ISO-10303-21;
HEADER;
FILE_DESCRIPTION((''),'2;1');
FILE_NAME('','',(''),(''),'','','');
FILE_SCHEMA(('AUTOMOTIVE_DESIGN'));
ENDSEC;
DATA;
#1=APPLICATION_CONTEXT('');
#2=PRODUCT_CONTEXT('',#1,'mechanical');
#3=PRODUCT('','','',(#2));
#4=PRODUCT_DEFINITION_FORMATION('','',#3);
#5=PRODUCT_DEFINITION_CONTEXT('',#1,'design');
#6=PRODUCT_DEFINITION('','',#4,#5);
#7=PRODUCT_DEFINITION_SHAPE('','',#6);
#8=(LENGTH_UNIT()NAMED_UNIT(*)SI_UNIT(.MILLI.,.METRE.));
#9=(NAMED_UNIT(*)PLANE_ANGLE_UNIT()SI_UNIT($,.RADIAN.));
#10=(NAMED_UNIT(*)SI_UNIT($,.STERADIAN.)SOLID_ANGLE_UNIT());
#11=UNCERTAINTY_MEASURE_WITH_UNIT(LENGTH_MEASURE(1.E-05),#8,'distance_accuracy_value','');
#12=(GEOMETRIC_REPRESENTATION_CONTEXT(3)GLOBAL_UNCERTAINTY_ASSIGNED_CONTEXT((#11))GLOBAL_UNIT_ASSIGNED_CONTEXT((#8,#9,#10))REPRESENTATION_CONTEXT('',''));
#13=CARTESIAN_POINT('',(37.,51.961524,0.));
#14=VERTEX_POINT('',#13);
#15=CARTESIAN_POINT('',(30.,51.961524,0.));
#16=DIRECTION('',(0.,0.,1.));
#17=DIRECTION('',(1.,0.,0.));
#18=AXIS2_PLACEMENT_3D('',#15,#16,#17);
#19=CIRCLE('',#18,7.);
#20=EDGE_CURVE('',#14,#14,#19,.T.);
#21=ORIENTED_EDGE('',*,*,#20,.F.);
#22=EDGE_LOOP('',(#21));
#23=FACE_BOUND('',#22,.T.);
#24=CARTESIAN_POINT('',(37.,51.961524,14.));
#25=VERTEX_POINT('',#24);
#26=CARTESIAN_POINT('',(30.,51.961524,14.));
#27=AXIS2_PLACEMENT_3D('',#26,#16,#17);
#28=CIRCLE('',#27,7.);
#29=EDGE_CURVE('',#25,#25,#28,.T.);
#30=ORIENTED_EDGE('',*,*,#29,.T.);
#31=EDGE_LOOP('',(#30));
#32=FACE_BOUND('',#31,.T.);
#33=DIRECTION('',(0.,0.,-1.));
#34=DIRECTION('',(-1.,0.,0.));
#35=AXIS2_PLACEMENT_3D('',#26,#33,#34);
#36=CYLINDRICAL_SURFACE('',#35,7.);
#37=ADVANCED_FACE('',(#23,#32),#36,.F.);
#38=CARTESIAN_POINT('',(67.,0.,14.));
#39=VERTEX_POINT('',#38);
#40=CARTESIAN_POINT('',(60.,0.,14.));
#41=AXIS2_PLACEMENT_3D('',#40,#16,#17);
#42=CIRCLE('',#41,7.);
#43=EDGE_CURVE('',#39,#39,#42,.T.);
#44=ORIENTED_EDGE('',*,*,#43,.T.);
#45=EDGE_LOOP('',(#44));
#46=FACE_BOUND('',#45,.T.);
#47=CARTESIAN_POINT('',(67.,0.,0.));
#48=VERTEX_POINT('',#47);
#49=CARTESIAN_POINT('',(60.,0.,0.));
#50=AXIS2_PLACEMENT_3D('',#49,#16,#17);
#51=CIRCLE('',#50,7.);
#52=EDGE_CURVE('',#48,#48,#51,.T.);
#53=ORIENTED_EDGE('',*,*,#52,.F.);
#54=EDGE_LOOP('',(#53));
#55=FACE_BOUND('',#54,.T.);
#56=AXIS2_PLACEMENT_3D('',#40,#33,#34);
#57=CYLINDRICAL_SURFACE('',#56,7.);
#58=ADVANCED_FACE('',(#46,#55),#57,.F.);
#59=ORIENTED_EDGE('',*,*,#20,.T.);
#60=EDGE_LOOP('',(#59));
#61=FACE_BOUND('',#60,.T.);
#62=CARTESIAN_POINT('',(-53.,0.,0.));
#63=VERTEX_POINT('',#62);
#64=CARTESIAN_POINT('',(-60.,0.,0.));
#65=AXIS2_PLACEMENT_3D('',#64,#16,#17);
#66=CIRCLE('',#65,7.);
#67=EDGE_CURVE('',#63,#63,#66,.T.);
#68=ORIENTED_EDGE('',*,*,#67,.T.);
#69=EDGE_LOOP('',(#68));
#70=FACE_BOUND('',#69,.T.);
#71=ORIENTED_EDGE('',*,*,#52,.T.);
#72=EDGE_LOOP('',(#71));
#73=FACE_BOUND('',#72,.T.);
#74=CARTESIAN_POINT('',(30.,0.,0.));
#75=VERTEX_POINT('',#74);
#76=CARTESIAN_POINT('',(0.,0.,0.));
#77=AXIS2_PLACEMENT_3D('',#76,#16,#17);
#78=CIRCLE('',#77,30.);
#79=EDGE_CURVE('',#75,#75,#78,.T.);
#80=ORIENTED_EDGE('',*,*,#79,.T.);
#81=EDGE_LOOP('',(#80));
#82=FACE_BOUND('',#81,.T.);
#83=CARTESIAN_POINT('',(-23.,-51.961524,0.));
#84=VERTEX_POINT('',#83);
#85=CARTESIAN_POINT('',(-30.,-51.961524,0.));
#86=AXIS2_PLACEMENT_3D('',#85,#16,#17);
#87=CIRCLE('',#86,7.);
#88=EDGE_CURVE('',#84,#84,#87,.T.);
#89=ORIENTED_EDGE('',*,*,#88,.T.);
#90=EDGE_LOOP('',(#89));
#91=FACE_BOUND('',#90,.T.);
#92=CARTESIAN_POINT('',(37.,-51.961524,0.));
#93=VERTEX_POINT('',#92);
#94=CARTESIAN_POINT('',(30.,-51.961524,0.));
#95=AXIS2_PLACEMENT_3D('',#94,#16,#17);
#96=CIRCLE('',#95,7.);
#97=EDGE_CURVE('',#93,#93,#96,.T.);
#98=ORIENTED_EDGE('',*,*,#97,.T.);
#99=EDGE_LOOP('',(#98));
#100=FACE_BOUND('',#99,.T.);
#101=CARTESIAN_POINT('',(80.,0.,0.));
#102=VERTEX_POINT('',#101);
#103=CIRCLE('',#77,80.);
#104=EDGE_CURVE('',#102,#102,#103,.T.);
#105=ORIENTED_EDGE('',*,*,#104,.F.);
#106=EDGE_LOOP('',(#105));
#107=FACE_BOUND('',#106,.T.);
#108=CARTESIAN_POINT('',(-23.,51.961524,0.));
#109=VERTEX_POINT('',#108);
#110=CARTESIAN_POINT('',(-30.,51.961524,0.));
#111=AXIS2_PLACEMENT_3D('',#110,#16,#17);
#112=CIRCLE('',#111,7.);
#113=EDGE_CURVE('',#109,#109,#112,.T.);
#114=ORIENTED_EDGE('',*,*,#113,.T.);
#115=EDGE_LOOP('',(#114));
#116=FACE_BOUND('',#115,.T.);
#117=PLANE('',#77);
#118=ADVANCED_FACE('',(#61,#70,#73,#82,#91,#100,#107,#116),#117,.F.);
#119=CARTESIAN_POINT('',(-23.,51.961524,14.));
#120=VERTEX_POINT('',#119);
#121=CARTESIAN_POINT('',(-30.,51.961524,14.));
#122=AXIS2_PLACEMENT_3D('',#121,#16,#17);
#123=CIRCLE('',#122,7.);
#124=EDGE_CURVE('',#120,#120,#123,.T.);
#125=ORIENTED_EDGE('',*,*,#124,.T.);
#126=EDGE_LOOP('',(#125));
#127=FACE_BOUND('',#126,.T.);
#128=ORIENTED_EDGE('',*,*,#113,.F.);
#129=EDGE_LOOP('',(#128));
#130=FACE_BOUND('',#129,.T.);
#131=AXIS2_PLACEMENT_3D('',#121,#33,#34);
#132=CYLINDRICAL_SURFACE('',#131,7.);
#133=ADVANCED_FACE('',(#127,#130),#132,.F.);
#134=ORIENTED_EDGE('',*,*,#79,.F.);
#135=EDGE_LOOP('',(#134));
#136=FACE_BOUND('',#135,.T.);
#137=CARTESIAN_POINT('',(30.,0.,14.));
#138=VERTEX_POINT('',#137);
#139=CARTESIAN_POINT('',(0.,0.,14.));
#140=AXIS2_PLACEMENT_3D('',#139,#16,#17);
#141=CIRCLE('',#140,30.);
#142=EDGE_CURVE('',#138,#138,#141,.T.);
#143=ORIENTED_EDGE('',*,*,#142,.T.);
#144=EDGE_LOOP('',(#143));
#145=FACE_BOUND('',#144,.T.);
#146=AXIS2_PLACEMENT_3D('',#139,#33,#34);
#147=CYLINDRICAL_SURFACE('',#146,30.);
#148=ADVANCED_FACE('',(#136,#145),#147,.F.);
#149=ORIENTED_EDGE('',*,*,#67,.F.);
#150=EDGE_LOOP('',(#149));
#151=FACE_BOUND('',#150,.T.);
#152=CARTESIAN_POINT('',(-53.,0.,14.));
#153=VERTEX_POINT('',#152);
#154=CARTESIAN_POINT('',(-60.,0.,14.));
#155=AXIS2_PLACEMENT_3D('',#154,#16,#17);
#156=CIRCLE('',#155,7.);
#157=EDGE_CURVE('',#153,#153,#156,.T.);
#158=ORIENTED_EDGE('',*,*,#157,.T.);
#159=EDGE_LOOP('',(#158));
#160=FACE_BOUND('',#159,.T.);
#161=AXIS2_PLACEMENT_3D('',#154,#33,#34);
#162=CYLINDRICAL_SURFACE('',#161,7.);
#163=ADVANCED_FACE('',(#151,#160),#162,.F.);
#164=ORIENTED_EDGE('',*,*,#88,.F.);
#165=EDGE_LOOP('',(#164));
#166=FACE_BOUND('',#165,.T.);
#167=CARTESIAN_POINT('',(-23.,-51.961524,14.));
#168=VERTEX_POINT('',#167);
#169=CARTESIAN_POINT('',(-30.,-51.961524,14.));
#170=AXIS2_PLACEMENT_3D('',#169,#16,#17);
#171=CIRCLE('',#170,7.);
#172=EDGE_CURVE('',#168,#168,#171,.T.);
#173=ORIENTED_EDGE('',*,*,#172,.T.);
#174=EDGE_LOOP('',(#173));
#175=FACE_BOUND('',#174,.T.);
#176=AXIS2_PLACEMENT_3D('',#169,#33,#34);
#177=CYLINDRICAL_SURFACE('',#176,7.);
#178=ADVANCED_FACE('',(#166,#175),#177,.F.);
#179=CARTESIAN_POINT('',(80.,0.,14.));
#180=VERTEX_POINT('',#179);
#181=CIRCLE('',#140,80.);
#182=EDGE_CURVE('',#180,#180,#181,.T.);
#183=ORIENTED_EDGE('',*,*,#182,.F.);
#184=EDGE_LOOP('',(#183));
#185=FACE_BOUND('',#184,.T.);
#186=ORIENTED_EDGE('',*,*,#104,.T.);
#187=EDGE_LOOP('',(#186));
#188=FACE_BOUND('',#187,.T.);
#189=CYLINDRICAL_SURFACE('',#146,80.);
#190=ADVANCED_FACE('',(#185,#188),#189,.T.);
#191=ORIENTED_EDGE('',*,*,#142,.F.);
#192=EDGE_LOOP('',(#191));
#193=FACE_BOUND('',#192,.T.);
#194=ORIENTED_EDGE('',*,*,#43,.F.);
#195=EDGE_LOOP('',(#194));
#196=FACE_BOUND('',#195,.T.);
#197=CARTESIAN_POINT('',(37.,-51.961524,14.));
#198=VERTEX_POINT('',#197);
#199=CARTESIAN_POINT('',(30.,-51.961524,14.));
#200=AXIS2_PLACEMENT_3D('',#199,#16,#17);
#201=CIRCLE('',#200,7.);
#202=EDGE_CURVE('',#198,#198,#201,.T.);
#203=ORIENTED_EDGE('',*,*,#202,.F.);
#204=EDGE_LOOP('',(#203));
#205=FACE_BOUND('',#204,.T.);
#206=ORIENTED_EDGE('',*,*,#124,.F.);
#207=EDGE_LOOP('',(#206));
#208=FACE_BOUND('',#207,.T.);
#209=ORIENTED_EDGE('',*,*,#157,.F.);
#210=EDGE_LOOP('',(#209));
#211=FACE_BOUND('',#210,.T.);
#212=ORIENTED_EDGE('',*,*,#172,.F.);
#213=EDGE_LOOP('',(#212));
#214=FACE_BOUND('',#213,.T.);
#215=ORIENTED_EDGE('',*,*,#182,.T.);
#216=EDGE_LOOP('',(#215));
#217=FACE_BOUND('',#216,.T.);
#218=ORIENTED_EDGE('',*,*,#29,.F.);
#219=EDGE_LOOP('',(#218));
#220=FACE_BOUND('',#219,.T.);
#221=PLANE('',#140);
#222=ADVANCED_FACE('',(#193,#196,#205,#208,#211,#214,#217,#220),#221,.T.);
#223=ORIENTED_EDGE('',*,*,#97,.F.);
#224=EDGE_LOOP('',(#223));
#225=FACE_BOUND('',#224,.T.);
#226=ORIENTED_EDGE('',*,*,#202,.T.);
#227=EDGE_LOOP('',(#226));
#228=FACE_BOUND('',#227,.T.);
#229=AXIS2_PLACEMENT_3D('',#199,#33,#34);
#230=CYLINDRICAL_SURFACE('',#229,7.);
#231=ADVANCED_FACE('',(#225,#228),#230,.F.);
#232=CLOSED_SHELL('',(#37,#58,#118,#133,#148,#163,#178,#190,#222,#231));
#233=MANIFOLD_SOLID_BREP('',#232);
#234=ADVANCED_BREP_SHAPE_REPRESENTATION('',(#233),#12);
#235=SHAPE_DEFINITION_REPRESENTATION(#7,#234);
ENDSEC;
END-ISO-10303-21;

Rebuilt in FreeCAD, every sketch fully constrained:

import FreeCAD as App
import Part
import Sketcher

doc = App.newDocument("Part")
params = doc.addObject("Spreadsheet::Sheet", "Params")
for row, (alias, value) in enumerate([
    ("sketch1_diameter", "160 mm"),
    ("sketch1_diameter2", "14 mm"),
    ("sketch1_diameter3", "60 mm"),
    ("pad1_length", "14 mm"),
], start=1):
    params.set(f"A{row}", alias)
    params.set(f"B{row}", "=" + value)
    params.setAlias(f"B{row}", alias)

body = doc.addObject("PartDesign::Body", "Body")

# Sketch on XY plane
sketch1 = body.newObject("Sketcher::SketchObject", "Sketch")
sketch1.AttachmentSupport = (doc.getObject("XY_Plane"), [""])
sketch1.MapMode = "FlatFace"
sketch1.addGeometry([
    Part.Circle(App.Vector(0, 0, 0), App.Vector(0, 0, 1), 80),  # 0
    Part.Circle(App.Vector(-30, -52, 0), App.Vector(0, 0, 1), 7),  # 1
    Part.Circle(App.Vector(30, -52, 0), App.Vector(0, 0, 1), 7),  # 2
    Part.Circle(App.Vector(-60, 0, 0), App.Vector(0, 0, 1), 7),  # 3
    Part.Circle(App.Vector(-30, 52, 0), App.Vector(0, 0, 1), 7),  # 4
    Part.Circle(App.Vector(0, 0, 0), App.Vector(0, 0, 1), 30),  # 5
    Part.Circle(App.Vector(60, 0, 0), App.Vector(0, 0, 1), 7),  # 6
    Part.Circle(App.Vector(30, 52, 0), App.Vector(0, 0, 1), 7),  # 7
], False)
sketch1.addConstraint([
    Sketcher.Constraint("Coincident", 0, 3, -1, 1),
    Sketcher.Constraint("Coincident", 5, 3, -1, 1),
    Sketcher.Constraint("Equal", 1, 2),
    Sketcher.Constraint("Equal", 2, 3),
    Sketcher.Constraint("Equal", 3, 4),
    Sketcher.Constraint("Equal", 4, 6),
    Sketcher.Constraint("Equal", 6, 7),
    Sketcher.Constraint("Symmetric", 2, 3, 4, 3, -1, 1),
    Sketcher.Constraint("Symmetric", 3, 3, 6, 3, -1, 1),
    Sketcher.Constraint("Symmetric", 1, 3, 7, 3, -1, 1),
    Sketcher.Constraint("Symmetric", 1, 3, 2, 3, -2),
    Sketcher.Constraint("PointOnObject", 3, 3, -1),
    Sketcher.Constraint("Diameter", 0, 160.0),
    Sketcher.Constraint("Diameter", 1, 14.0),
    Sketcher.Constraint("Diameter", 5, 60.0),
    Sketcher.Constraint("DistanceX", 1, 3, -1, 1, 30.0),
    Sketcher.Constraint("DistanceX", 3, 3, -1, 1, 60.0),
    Sketcher.Constraint("DistanceY", 1, 3, 4, 3, 103.923048),
])
sketch1.setExpression("Constraints[12]", "Params.sketch1_diameter")
sketch1.setExpression("Constraints[13]", "Params.sketch1_diameter2")
sketch1.setExpression("Constraints[14]", "Params.sketch1_diameter3")
pad1 = body.newObject("PartDesign::Pad", "Pad")
pad1.Profile = sketch1
pad1.setExpression("Length", "Params.pad1_length")

doc.recompute()
